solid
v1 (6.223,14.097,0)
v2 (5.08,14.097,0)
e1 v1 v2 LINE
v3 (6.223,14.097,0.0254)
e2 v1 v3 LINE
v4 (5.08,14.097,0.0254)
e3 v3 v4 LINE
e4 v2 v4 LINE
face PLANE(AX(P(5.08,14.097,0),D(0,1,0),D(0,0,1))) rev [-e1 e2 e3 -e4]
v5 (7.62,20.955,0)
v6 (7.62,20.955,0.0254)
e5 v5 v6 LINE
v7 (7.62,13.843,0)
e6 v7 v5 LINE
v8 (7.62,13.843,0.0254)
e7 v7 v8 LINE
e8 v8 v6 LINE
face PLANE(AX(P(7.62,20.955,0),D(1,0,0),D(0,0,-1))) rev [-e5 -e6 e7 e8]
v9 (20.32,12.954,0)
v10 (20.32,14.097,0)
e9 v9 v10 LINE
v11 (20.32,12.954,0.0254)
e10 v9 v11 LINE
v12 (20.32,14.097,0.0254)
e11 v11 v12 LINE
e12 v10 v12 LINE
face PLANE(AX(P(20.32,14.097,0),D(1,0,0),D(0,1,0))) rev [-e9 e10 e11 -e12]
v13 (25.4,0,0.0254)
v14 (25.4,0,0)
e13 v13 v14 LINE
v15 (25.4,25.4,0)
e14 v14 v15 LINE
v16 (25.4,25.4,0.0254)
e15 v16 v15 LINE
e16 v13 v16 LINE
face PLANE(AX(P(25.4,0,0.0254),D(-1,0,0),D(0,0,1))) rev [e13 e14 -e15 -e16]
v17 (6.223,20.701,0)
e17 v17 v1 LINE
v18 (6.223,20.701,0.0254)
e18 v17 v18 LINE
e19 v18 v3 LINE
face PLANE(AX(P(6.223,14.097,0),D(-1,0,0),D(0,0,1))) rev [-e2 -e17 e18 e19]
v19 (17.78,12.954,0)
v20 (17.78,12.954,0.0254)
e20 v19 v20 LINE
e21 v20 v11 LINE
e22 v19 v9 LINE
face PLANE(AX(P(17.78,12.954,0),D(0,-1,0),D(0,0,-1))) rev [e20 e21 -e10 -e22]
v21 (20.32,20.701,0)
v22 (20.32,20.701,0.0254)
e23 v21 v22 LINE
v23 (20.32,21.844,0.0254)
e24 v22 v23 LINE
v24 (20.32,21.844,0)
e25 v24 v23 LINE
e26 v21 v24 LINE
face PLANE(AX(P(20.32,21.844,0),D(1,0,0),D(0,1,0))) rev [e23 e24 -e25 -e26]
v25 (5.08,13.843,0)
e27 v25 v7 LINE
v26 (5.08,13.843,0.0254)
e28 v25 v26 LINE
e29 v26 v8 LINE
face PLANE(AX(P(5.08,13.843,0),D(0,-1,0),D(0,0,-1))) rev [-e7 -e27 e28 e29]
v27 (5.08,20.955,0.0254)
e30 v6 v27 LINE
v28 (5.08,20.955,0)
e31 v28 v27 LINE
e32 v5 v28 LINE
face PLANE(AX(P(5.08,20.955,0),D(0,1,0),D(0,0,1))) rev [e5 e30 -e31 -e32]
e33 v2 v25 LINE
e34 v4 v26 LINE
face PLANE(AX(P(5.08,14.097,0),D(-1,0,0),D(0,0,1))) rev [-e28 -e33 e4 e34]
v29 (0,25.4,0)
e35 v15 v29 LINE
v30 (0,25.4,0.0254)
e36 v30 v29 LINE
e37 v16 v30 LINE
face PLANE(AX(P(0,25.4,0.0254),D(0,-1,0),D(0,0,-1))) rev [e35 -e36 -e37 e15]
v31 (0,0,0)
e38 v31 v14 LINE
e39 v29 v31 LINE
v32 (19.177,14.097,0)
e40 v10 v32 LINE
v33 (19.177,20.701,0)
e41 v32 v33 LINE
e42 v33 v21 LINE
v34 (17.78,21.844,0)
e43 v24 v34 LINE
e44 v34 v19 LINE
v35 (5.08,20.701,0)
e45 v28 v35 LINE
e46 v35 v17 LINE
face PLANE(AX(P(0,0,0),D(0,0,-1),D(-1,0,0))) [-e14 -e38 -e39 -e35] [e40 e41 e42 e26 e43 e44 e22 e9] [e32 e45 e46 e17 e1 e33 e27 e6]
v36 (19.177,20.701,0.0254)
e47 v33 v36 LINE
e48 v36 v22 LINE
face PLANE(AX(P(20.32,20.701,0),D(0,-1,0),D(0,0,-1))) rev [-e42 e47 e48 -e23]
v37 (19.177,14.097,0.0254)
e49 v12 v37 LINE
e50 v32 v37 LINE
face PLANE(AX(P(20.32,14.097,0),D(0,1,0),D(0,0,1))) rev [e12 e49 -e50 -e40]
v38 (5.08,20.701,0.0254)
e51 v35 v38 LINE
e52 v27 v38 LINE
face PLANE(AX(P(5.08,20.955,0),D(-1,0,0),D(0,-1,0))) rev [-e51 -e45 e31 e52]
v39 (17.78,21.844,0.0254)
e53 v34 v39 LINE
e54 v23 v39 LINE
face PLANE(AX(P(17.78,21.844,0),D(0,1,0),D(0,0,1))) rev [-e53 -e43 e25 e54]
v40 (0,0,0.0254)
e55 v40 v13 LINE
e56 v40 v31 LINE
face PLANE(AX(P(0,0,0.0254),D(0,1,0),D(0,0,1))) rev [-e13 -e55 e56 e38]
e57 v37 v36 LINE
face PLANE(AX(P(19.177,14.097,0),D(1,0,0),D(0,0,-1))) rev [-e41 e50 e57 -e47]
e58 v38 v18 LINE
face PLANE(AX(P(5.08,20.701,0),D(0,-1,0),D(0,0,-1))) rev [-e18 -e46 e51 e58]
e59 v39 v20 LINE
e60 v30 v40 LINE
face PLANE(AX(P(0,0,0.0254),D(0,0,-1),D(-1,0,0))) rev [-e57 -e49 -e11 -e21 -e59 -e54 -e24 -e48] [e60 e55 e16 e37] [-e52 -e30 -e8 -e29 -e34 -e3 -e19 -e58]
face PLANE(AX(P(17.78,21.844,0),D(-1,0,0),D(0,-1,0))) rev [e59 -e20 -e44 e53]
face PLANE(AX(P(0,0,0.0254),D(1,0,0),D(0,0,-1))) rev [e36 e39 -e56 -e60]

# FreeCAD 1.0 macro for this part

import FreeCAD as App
import Part
import Sketcher

V = App.Vector
Q = App.Units.Quantity


def add_polygon(sketch, points):
    """Adds a closed chain of lines whose ends are joined by coincident constraints."""
    first, n = sketch.GeometryCount, len(points)
    for a, b in zip(points, points[1:] + points[:1]):
        sketch.addGeometry(Part.LineSegment(App.Vector(*a, 0), App.Vector(*b, 0)), False)
    for i in range(n):
        sketch.addConstraint(Sketcher.Constraint("Coincident", first + i, 2, first + (i + 1) % n, 1))

doc = App.newDocument("Part")
body = doc.addObject("PartDesign::Body", "Body")

sketch1 = body.newObject("Sketcher::SketchObject", "Sketch")
sketch1.AttachmentSupport = (doc.getObject("XY_Plane"), [""])
sketch1.MapMode = "FlatFace"
add_polygon(sketch1, [(0, 25), (0, 0), (25, 0), (25, 25)])
sketch1.addConstraint(Sketcher.Constraint("Vertical", 0))
sketch1.addConstraint(Sketcher.Constraint("Horizontal", 1))
sketch1.addConstraint(Sketcher.Constraint("Vertical", 2))
sketch1.addConstraint(Sketcher.Constraint("Horizontal", 3))
sketch1.addConstraint(Sketcher.Constraint("Coincident", 0, 2, -1, 1))
sketch1.addConstraint(Sketcher.Constraint("Equal", 3, 0))
sketch1.addConstraint(Sketcher.Constraint("DistanceX", 1, 1, 1, 2, Q("1 in")))
pad1 = body.newObject("PartDesign::Pad", "Pad")
pad1.Profile = sketch1
pad1.Length = Q("0.001 in")

sketch2 = body.newObject("Sketcher::SketchObject", "Sketch001")
sketch2.AttachmentSupport = (doc.getObject("XY_Plane"), [""])
sketch2.MapMode = "FlatFace"
sketch2.AttachmentOffset = App.Placement(V(0, 0, 0.001 * 25.4), App.Rotation())
add_polygon(sketch2, [(7.62, 20.95), (5.08, 20.95), (5.08, 20.7), (6.22, 20.7), (6.22, 14.1), (5.08, 14.1), (5.08, 13.84), (7.62, 13.84)])
add_polygon(sketch2, [(20.32, 21.84), (17.78, 21.84), (17.78, 12.95), (20.32, 12.95), (20.32, 14.1), (19.18, 14.1), (19.18, 20.7), (20.32, 20.7)])
sketch2.addConstraint(Sketcher.Constraint("Horizontal", 0))
sketch2.addConstraint(Sketcher.Constraint("Vertical", 1))
sketch2.addConstraint(Sketcher.Constraint("Horizontal", 2))
sketch2.addConstraint(Sketcher.Constraint("Vertical", 3))
sketch2.addConstraint(Sketcher.Constraint("Horizontal", 4))
sketch2.addConstraint(Sketcher.Constraint("Vertical", 5))
sketch2.addConstraint(Sketcher.Constraint("Horizontal", 6))
sketch2.addConstraint(Sketcher.Constraint("Vertical", 7))
sketch2.addConstraint(Sketcher.Constraint("Horizontal", 8))
sketch2.addConstraint(Sketcher.Constraint("Vertical", 9))
sketch2.addConstraint(Sketcher.Constraint("Horizontal", 10))
sketch2.addConstraint(Sketcher.Constraint("Vertical", 11))
sketch2.addConstraint(Sketcher.Constraint("Horizontal", 12))
sketch2.addConstraint(Sketcher.Constraint("Vertical", 13))
sketch2.addConstraint(Sketcher.Constraint("Horizontal", 14))
sketch2.addConstraint(Sketcher.Constraint("Vertical", 15))
sketch2.addConstraint(Sketcher.Constraint("Horizontal", 4, 2, 11, 2))
sketch2.addConstraint(Sketcher.Constraint("Horizontal", 2, 2, 13, 2))
sketch2.addConstraint(Sketcher.Constraint("Vertical", 1, 2, 4, 2))
sketch2.addConstraint(Sketcher.Constraint("Vertical", 11, 2, 14, 2))
sketch2.addConstraint(Sketcher.Constraint("Equal", 6, 8))
sketch2.addConstraint(Sketcher.Constraint("Equal", 4, 12))
sketch2.addConstraint(Sketcher.Constraint("Equal", 1, 5))
sketch2.addConstraint(Sketcher.Constraint("Equal", 14, 11))
sketch2.addConstraint(Sketcher.Constraint("Equal", 11, 15))
sketch2.addConstraint(Sketcher.Constraint("DistanceX", 0, 2, 0, 1, Q("0.1 in")))
sketch2.addConstraint(Sketcher.Constraint("DistanceY", 1, 2, 1, 1, Q("0.01 in")))
sketch2.addConstraint(Sketcher.Constraint("DistanceY", 3, 2, 3, 1, Q("0.26 in")))
sketch2.addConstraint(Sketcher.Constraint("DistanceY", 9, 2, 9, 1, Q("0.35 in")))
sketch2.addConstraint(Sketcher.Constraint("DistanceX", -1, 1, 0, 2, Q("0.2 in")))
sketch2.addConstraint(Sketcher.Constraint("DistanceX", -1, 1, 8, 2, Q("0.7 in")))
sketch2.addConstraint(Sketcher.Constraint("DistanceY", -1, 1, 8, 2, Q("0.86 in")))
pocket1 = body.newObject("PartDesign::Pocket", "Pocket")
pocket1.Profile = sketch2
pocket1.Type = "ThroughAll"

doc.recompute()
